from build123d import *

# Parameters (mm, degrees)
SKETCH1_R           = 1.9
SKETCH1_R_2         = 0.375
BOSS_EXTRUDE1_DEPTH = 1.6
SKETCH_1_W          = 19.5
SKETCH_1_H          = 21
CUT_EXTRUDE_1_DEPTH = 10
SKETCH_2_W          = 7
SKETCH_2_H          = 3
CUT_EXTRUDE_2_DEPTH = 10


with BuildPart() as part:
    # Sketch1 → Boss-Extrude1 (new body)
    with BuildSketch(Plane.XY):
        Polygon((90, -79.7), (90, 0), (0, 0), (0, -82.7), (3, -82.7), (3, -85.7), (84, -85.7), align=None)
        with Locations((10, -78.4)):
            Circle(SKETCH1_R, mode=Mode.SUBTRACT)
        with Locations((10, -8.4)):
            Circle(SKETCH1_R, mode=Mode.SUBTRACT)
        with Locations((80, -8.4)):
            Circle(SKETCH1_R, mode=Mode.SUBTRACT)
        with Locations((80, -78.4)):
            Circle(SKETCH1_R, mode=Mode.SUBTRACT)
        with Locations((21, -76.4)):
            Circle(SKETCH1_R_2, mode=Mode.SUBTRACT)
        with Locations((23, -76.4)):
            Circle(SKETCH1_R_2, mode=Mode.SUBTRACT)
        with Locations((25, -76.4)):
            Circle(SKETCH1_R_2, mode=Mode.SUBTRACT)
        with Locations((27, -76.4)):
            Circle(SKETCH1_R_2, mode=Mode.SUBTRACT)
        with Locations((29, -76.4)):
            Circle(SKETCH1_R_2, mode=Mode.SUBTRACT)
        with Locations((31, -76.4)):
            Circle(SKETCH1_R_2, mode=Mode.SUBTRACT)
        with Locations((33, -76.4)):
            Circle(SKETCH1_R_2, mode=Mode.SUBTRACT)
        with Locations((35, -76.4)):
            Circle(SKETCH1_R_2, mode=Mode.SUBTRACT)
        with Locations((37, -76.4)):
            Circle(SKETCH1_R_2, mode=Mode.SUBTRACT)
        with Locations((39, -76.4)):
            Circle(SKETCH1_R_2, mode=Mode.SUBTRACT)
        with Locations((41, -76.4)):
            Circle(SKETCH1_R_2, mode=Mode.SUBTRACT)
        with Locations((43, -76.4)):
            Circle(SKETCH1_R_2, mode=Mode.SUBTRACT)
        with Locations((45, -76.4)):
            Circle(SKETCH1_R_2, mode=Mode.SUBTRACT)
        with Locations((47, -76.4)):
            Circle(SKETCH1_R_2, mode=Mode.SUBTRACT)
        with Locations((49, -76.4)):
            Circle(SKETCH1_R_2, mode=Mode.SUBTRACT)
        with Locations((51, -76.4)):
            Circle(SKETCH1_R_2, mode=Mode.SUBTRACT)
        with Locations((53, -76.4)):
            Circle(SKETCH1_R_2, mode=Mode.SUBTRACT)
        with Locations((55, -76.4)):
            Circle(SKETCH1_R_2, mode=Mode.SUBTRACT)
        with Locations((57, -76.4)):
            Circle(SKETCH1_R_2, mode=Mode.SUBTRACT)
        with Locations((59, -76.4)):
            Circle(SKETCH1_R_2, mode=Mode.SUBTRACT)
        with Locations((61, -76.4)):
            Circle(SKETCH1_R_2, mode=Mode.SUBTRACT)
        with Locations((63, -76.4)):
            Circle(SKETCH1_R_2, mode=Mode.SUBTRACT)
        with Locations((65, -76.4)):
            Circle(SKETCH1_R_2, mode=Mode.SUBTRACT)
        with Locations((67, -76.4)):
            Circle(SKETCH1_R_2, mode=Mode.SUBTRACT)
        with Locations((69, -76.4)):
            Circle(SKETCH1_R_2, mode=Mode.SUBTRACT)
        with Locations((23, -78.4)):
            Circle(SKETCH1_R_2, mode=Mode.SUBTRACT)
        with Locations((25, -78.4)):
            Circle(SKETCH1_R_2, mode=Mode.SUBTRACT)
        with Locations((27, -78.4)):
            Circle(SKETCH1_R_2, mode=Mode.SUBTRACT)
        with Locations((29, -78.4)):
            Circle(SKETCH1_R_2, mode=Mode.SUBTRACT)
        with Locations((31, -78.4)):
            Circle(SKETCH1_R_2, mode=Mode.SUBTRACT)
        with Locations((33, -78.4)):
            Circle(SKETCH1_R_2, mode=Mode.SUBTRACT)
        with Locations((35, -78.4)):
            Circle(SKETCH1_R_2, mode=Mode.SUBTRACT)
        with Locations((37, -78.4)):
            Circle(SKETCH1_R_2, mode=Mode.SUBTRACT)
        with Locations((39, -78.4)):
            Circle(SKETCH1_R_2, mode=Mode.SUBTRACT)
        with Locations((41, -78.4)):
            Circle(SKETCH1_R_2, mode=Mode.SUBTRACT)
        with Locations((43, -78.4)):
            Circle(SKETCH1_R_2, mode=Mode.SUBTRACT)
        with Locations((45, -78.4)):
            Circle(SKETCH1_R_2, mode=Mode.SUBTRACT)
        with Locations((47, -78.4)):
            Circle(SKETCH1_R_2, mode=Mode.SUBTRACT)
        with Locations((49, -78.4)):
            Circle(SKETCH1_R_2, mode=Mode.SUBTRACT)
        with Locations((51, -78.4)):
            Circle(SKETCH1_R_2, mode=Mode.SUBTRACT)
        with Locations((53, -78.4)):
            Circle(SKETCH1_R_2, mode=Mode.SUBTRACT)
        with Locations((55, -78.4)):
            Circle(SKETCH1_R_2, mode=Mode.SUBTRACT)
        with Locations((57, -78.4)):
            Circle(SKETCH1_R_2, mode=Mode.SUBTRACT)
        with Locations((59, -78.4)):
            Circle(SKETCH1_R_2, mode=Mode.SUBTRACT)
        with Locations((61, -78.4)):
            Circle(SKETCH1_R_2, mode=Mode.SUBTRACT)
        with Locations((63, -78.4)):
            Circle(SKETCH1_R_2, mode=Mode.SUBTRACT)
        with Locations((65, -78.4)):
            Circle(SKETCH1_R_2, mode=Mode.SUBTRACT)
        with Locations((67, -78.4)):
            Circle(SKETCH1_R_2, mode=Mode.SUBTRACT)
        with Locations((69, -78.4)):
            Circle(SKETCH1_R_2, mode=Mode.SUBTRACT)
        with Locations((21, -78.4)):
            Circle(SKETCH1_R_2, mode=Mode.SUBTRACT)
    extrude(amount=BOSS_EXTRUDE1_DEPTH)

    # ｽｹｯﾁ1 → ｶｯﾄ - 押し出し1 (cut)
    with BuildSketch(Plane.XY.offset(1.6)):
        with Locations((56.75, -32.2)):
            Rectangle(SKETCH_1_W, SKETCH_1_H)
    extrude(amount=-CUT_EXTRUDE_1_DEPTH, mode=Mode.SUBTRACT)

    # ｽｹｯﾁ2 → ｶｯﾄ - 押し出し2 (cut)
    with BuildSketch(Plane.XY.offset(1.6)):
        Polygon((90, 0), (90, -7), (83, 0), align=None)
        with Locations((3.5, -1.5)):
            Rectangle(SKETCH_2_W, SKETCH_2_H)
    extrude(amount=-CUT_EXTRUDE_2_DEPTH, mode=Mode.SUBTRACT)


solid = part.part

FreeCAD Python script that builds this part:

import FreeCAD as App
import Part
import Sketcher

V = App.Vector
Q = App.Units.Quantity

doc = App.newDocument("Part")
body = doc.addObject("PartDesign::Body", "Body")

# Sketch on XY plane
sketch1 = body.newObject("Sketcher::SketchObject", "Sketch")
sketch1.AttachmentSupport = (doc.getObject("XY_Plane"), [""])
sketch1.MapMode = "FlatFace"
sketch1.addGeometry([
    Part.LineSegment(V(90, -79.7, 0), V(90, 0, 0)),  # 0
    Part.LineSegment(V(90, 0, 0), V(0, 0, 0)),  # 1
    Part.LineSegment(V(0, 0, 0), V(0, -82.7, 0)),  # 2
    Part.LineSegment(V(0, -82.7, 0), V(3, -82.7, 0)),  # 3
    Part.LineSegment(V(3, -82.7, 0), V(3, -85.7, 0)),  # 4
    Part.LineSegment(V(3, -85.7, 0), V(84, -85.7, 0)),  # 5
    Part.LineSegment(V(84, -85.7, 0), V(90, -79.7, 0)),  # 6
    Part.Circle(V(10, -78.4, 0), V(0, 0, 1), 1.9),  # 7
    Part.Circle(V(21, -78.4, 0), V(0, 0, 1), 0.38),  # 8
    Part.Circle(V(21, -76.4, 0), V(0, 0, 1), 0.38),  # 9
    Part.Circle(V(23, -78.4, 0), V(0, 0, 1), 0.38),  # 10
    Part.Circle(V(25, -78.4, 0), V(0, 0, 1), 0.38),  # 11
    Part.Circle(V(23, -76.4, 0), V(0, 0, 1), 0.38),  # 12
    Part.Circle(V(25, -76.4, 0), V(0, 0, 1), 0.38),  # 13
    Part.Circle(V(27, -78.4, 0), V(0, 0, 1), 0.38),  # 14
    Part.Circle(V(29, -78.4, 0), V(0, 0, 1), 0.38),  # 15
    Part.Circle(V(31, -78.4, 0), V(0, 0, 1), 0.38),  # 16
    Part.Circle(V(27, -76.4, 0), V(0, 0, 1), 0.38),  # 17
    Part.Circle(V(29, -76.4, 0), V(0, 0, 1), 0.38),  # 18
    Part.Circle(V(31, -76.4, 0), V(0, 0, 1), 0.38),  # 19
    Part.Circle(V(33, -78.4, 0), V(0, 0, 1), 0.38),  # 20
    Part.Circle(V(35, -78.4, 0), V(0, 0, 1), 0.38),  # 21
    Part.Circle(V(33, -76.4, 0), V(0, 0, 1), 0.38),  # 22
    Part.Circle(V(35, -76.4, 0), V(0, 0, 1), 0.38),  # 23
    Part.Circle(V(37, -78.4, 0), V(0, 0, 1), 0.38),  # 24
    Part.Circle(V(39, -78.4, 0), V(0, 0, 1), 0.38),  # 25
    Part.Circle(V(37, -76.4, 0), V(0, 0, 1), 0.38),  # 26
    Part.Circle(V(39, -76.4, 0), V(0, 0, 1), 0.38),  # 27
    Part.Circle(V(41, -78.4, 0), V(0, 0, 1), 0.38),  # 28
    Part.Circle(V(43, -78.4, 0), V(0, 0, 1), 0.38),  # 29
    Part.Circle(V(45, -78.4, 0), V(0, 0, 1), 0.38),  # 30
    Part.Circle(V(41, -76.4, 0), V(0, 0, 1), 0.38),  # 31
    Part.Circle(V(43, -76.4, 0), V(0, 0, 1), 0.38),  # 32
    Part.Circle(V(45, -76.4, 0), V(0, 0, 1), 0.38),  # 33
    Part.Circle(V(47, -78.4, 0), V(0, 0, 1), 0.38),  # 34
    Part.Circle(V(49, -78.4, 0), V(0, 0, 1), 0.38),  # 35
    Part.Circle(V(47, -76.4, 0), V(0, 0, 1), 0.38),  # 36
    Part.Circle(V(49, -76.4, 0), V(0, 0, 1), 0.38),  # 37
    Part.Circle(V(51, -78.4, 0), V(0, 0, 1), 0.38),  # 38
    Part.Circle(V(53, -78.4, 0), V(0, 0, 1), 0.38),  # 39
    Part.Circle(V(51, -76.4, 0), V(0, 0, 1), 0.38),  # 40
    Part.Circle(V(53, -76.4, 0), V(0, 0, 1), 0.38),  # 41
    Part.Circle(V(55, -78.4, 0), V(0, 0, 1), 0.38),  # 42
    Part.Circle(V(57, -78.4, 0), V(0, 0, 1), 0.38),  # 43
    Part.Circle(V(55, -76.4, 0), V(0, 0, 1), 0.38),  # 44
    Part.Circle(V(57, -76.4, 0), V(0, 0, 1), 0.38),  # 45
    Part.Circle(V(59, -78.4, 0), V(0, 0, 1), 0.38),  # 46
    Part.Circle(V(61, -78.4, 0), V(0, 0, 1), 0.38),  # 47
    Part.Circle(V(63, -78.4, 0), V(0, 0, 1), 0.38),  # 48
    Part.Circle(V(59, -76.4, 0), V(0, 0, 1), 0.38),  # 49
    Part.Circle(V(61, -76.4, 0), V(0, 0, 1), 0.38),  # 50
    Part.Circle(V(63, -76.4, 0), V(0, 0, 1), 0.38),  # 51
    Part.Circle(V(65, -78.4, 0), V(0, 0, 1), 0.38),  # 52
    Part.Circle(V(67, -78.4, 0), V(0, 0, 1), 0.38),  # 53
    Part.Circle(V(65, -76.4, 0), V(0, 0, 1), 0.38),  # 54
    Part.Circle(V(67, -76.4, 0), V(0, 0, 1), 0.38),  # 55
    Part.Circle(V(69, -78.4, 0), V(0, 0, 1), 0.38),  # 56
    Part.Circle(V(69, -76.4, 0), V(0, 0, 1), 0.38),  # 57
    Part.Circle(V(80, -78.4, 0), V(0, 0, 1), 1.9),  # 58
    Part.Circle(V(10, -8.4, 0), V(0, 0, 1), 1.9),  # 59
    Part.Circle(V(80, -8.4, 0), V(0, 0, 1), 1.9),  # 60
], False)
sketch1.addConstraint([
    Sketcher.Constraint("Coincident", 0, 2, 1, 1),
    Sketcher.Constraint("Coincident", 1, 2, 2, 1),
    Sketcher.Constraint("Coincident", 2, 2, 3, 1),
    Sketcher.Constraint("Coincident", 3, 2, 4, 1),
    Sketcher.Constraint("Coincident", 4, 2, 5, 1),
    Sketcher.Constraint("Coincident", 5, 2, 6, 1),
    Sketcher.Constraint("Coincident", 6, 2, 0, 1),
    Sketcher.Constraint("Vertical", 0),
    Sketcher.Constraint("Horizontal", 1),
    Sketcher.Constraint("Vertical", 2),
    Sketcher.Constraint("Horizontal", 3),
    Sketcher.Constraint("Vertical", 4),
    Sketcher.Constraint("Horizontal", 5),
    Sketcher.Constraint("Coincident", 1, 2, -1, 1),
    Sketcher.Constraint("Equal", 8, 9),
    Sketcher.Constraint("Equal", 9, 10),
    Sketcher.Constraint("Equal", 10, 11),
    Sketcher.Constraint("Equal", 11, 12),
    Sketcher.Constraint("Equal", 12, 13),
    Sketcher.Constraint("Equal", 13, 14),
    Sketcher.Constraint("Equal", 14, 15),
    Sketcher.Constraint("Equal", 15, 16),
    Sketcher.Constraint("Equal", 16, 17),
    Sketcher.Constraint("Equal", 17, 18),
    Sketcher.Constraint("Equal", 18, 19),
    Sketcher.Constraint("Equal", 19, 20),
    Sketcher.Constraint("Equal", 20, 21),
    Sketcher.Constraint("Equal", 21, 22),
    Sketcher.Constraint("Equal", 22, 23),
    Sketcher.Constraint("Equal", 23, 24),
    Sketcher.Constraint("Equal", 24, 25),
    Sketcher.Constraint("Equal", 25, 26),
    Sketcher.Constraint("Equal", 26, 27),
    Sketcher.Constraint("Equal", 27, 28),
    Sketcher.Constraint("Equal", 28, 29),
    Sketcher.Constraint("Equal", 29, 30),
    Sketcher.Constraint("Equal", 30, 31),
    Sketcher.Constraint("Equal", 31, 32),
    Sketcher.Constraint("Equal", 32, 33),
    Sketcher.Constraint("Equal", 33, 34),
    Sketcher.Constraint("Equal", 34, 35),
    Sketcher.Constraint("Equal", 35, 36),
    Sketcher.Constraint("Equal", 36, 37),
    Sketcher.Constraint("Equal", 37, 38),
    Sketcher.Constraint("Equal", 38, 39),
    Sketcher.Constraint("Equal", 39, 40),
    Sketcher.Constraint("Equal", 40, 41),
    Sketcher.Constraint("Equal", 41, 42),
    Sketcher.Constraint("Equal", 42, 43),
    Sketcher.Constraint("Equal", 43, 44),
    Sketcher.Constraint("Equal", 44, 45),
    Sketcher.Constraint("Equal", 45, 46),
    Sketcher.Constraint("Equal", 46, 47),
    Sketcher.Constraint("Equal", 47, 48),
    Sketcher.Constraint("Equal", 48, 49),
    Sketcher.Constraint("Equal", 49, 50),
    Sketcher.Constraint("Equal", 50, 51),
    Sketcher.Constraint("Equal", 51, 52),
    Sketcher.Constraint("Equal", 52, 53),
    Sketcher.Constraint("Equal", 53, 54),
    Sketcher.Constraint("Equal", 54, 55),
    Sketcher.Constraint("Equal", 55, 56),
    Sketcher.Constraint("Equal", 56, 57),
    Sketcher.Constraint("Equal", 7, 58),
    Sketcher.Constraint("Equal", 58, 59),
    Sketcher.Constraint("Equal", 59, 60),
    Sketcher.Constraint("Horizontal", 7, 3, 8, 3),
    Sketcher.Constraint("Horizontal", 8, 3, 10, 3),
    Sketcher.Constraint("Horizontal", 10, 3, 11, 3),
    Sketcher.Constraint("Horizontal", 9, 3, 12, 3),
    Sketcher.Constraint("Horizontal", 12, 3, 13, 3),
    Sketcher.Constraint("Horizontal", 11, 3, 14, 3),
    Sketcher.Constraint("Horizontal", 14, 3, 15, 3),
    Sketcher.Constraint("Horizontal", 15, 3, 16, 3),
    Sketcher.Constraint("Horizontal", 13, 3, 17, 3),
    Sketcher.Constraint("Horizontal", 17, 3, 18, 3),
    Sketcher.Constraint("Horizontal", 18, 3, 19, 3),
    Sketcher.Constraint("Horizontal", 16, 3, 20, 3),
    Sketcher.Constraint("Horizontal", 20, 3, 21, 3),
    Sketcher.Constraint("Horizontal", 19, 3, 22, 3),
    Sketcher.Constraint("Horizontal", 22, 3, 23, 3),
    Sketcher.Constraint("Horizontal", 21, 3, 24, 3),
    Sketcher.Constraint("Horizontal", 24, 3, 25, 3),
    Sketcher.Constraint("Horizontal", 23, 3, 26, 3),
    Sketcher.Constraint("Horizontal", 26, 3, 27, 3),
    Sketcher.Constraint("Horizontal", 25, 3, 28, 3),
    Sketcher.Constraint("Horizontal", 28, 3, 29, 3),
    Sketcher.Constraint("Horizontal", 29, 3, 30, 3),
    Sketcher.Constraint("Horizontal", 27, 3, 31, 3),
    Sketcher.Constraint("Horizontal", 31, 3, 32, 3),
    Sketcher.Constraint("Horizontal", 32, 3, 33, 3),
    Sketcher.Constraint("Horizontal", 30, 3, 34, 3),
    Sketcher.Constraint("Horizontal", 34, 3, 35, 3),
    Sketcher.Constraint("Horizontal", 33, 3, 36, 3),
    Sketcher.Constraint("Horizontal", 36, 3, 37, 3),
    Sketcher.Constraint("Horizontal", 35, 3, 38, 3),
    Sketcher.Constraint("Horizontal", 38, 3, 39, 3),
    Sketcher.Constraint("Horizontal", 37, 3, 40, 3),
    Sketcher.Constraint("Horizontal", 40, 3, 41, 3),
    Sketcher.Constraint("Horizontal", 39, 3, 42, 3),
    Sketcher.Constraint("Horizontal", 42, 3, 43, 3),
    Sketcher.Constraint("Horizontal", 41, 3, 44, 3),
    Sketcher.Constraint("Horizontal", 44, 3, 45, 3),
    Sketcher.Constraint("Horizontal", 43, 3, 46, 3),
    Sketcher.Constraint("Horizontal", 46, 3, 47, 3),
    Sketcher.Constraint("Horizontal", 47, 3, 48, 3),
    Sketcher.Constraint("Horizontal", 45, 3, 49, 3),
    Sketcher.Constraint("Horizontal", 49, 3, 50, 3),
    Sketcher.Constraint("Horizontal", 50, 3, 51, 3),
    Sketcher.Constraint("Horizontal", 48, 3, 52, 3),
    Sketcher.Constraint("Horizontal", 52, 3, 53, 3),
    Sketcher.Constraint("Horizontal", 51, 3, 54, 3),
    Sketcher.Constraint("Horizontal", 54, 3, 55, 3),
    Sketcher.Constraint("Horizontal", 53, 3, 56, 3),
    Sketcher.Constraint("Horizontal", 55, 3, 57, 3),
    Sketcher.Constraint("Horizontal", 56, 3, 58, 3),
    Sketcher.Constraint("Horizontal", 59, 3, 60, 3),
    Sketcher.Constraint("Vertical", 8, 3, 9, 3),
    Sketcher.Constraint("Vertical", 10, 3, 12, 3),
    Sketcher.Constraint("Vertical", 11, 3, 13, 3),
    Sketcher.Constraint("Vertical", 14, 3, 17, 3),
    Sketcher.Constraint("Vertical", 15, 3, 18, 3),
    Sketcher.Constraint("Vertical", 16, 3, 19, 3),
    Sketcher.Constraint("Vertical", 20, 3, 22, 3),
    Sketcher.Constraint("Vertical", 21, 3, 23, 3),
    Sketcher.Constraint("Vertical", 24, 3, 26, 3),
    Sketcher.Constraint("Vertical", 25, 3, 27, 3),
    Sketcher.Constraint("Vertical", 28, 3, 31, 3),
    Sketcher.Constraint("Vertical", 29, 3, 32, 3),
    Sketcher.Constraint("Vertical", 30, 3, 33, 3),
    Sketcher.Constraint("Vertical", 34, 3, 36, 3),
    Sketcher.Constraint("Vertical", 35, 3, 37, 3),
    Sketcher.Constraint("Vertical", 38, 3, 40, 3),
    Sketcher.Constraint("Vertical", 39, 3, 41, 3),
    Sketcher.Constraint("Vertical", 42, 3, 44, 3),
    Sketcher.Constraint("Vertical", 43, 3, 45, 3),
    Sketcher.Constraint("Vertical", 46, 3, 49, 3),
    Sketcher.Constraint("Vertical", 47, 3, 50, 3),
    Sketcher.Constraint("Vertical", 48, 3, 51, 3),
    Sketcher.Constraint("Vertical", 52, 3, 54, 3),
    Sketcher.Constraint("Vertical", 53, 3, 55, 3),
    Sketcher.Constraint("Vertical", 56, 3, 57, 3),
    Sketcher.Constraint("Vertical", 7, 3, 59, 3),
    Sketcher.Constraint("Vertical", 58, 3, 60, 3),
    Sketcher.Constraint("Equal", 3, 4),
    Sketcher.Constraint("Diameter", 7, 3.8),
    Sketcher.Constraint("Diameter", 8, 0.75),
    Sketcher.Constraint("DistanceX", 1, 2, 1, 1, 90.0),
    Sketcher.Constraint("DistanceX", 3, 1, 3, 2, 3.0),
    Sketcher.Constraint("DistanceX", 5, 1, 5, 2, 81.0),
    Sketcher.Constraint("Angle", 6, Q("45 deg")),
    Sketcher.Constraint("DistanceY", 0, 1, 0, 2, 79.7),
    Sketcher.Constraint("DistanceX", -1, 1, 7, 3, 10.0),
    Sketcher.Constraint("DistanceX", -1, 1, 8, 3, 21.0),
    Sketcher.Constraint("DistanceX", -1, 1, 10, 3, 23.0),
    Sketcher.Constraint("DistanceX", -1, 1, 11, 3, 25.0),
    Sketcher.Constraint("DistanceX", -1, 1, 14, 3, 27.0),
    Sketcher.Constraint("DistanceX", -1, 1, 15, 3, 29.0),
    Sketcher.Constraint("DistanceX", -1, 1, 16, 3, 31.0),
    Sketcher.Constraint("DistanceX", -1, 1, 20, 3, 33.0),
    Sketcher.Constraint("DistanceX", -1, 1, 21, 3, 35.0),
    Sketcher.Constraint("DistanceX", -1, 1, 24, 3, 37.0),
    Sketcher.Constraint("DistanceX", -1, 1, 25, 3, 39.0),
    Sketcher.Constraint("DistanceX", -1, 1, 28, 3, 41.0),
    Sketcher.Constraint("DistanceX", -1, 1, 29, 3, 43.0),
    Sketcher.Constraint("DistanceX", -1, 1, 30, 3, 45.0),
    Sketcher.Constraint("DistanceX", -1, 1, 34, 3, 47.0),
    Sketcher.Constraint("DistanceX", -1, 1, 35, 3, 49.0),
    Sketcher.Constraint("DistanceX", -1, 1, 38, 3, 51.0),
    Sketcher.Constraint("DistanceX", -1, 1, 39, 3, 53.0),
    Sketcher.Constraint("DistanceX", -1, 1, 42, 3, 55.0),
    Sketcher.Constraint("DistanceX", -1, 1, 43, 3, 57.0),
    Sketcher.Constraint("DistanceX", -1, 1, 46, 3, 59.0),
    Sketcher.Constraint("DistanceX", -1, 1, 47, 3, 61.0),
    Sketcher.Constraint("DistanceX", -1, 1, 48, 3, 63.0),
    Sketcher.Constraint("DistanceX", -1, 1, 52, 3, 65.0),
    Sketcher.Constraint("DistanceX", -1, 1, 53, 3, 67.0),
    Sketcher.Constraint("DistanceX", -1, 1, 56, 3, 69.0),
    Sketcher.Constraint("DistanceX", -1, 1, 58, 3, 80.0),
    Sketcher.Constraint("DistanceY", 7, 3, -1, 1, 78.4),
    Sketcher.Constraint("DistanceY", 9, 3, -1, 1, 76.4),
    Sketcher.Constraint("DistanceY", 59, 3, -1, 1, 8.4),
])
pad1 = body.newObject("PartDesign::Pad", "Pad")
pad1.Profile = sketch1
pad1.Length = 1.6

# Sketch on XY plane
sketch2 = body.newObject("Sketcher::SketchObject", "Sketch001")
sketch2.AttachmentSupport = (doc.getObject("XY_Plane"), [""])
sketch2.MapMode = "FlatFace"
sketch2.AttachmentOffset = App.Placement(V(0, 0, 1.6), App.Rotation())
sketch2.addGeometry([
    Part.LineSegment(V(47, -22, 0), V(47, -43, 0)),
    Part.LineSegment(V(47, -43, 0), V(66, -43, 0)),
    Part.LineSegment(V(66, -43, 0), V(66, -22, 0)),
    Part.LineSegment(V(66, -22, 0), V(47, -22, 0)),
], False)
sketch2.addConstraint([
    Sketcher.Constraint("Coincident", 0, 2, 1, 1),
    Sketcher.Constraint("Coincident", 1, 2, 2, 1),
    Sketcher.Constraint("Coincident", 2, 2, 3, 1),
    Sketcher.Constraint("Coincident", 3, 2, 0, 1),
    Sketcher.Constraint("Vertical", 0),
    Sketcher.Constraint("Horizontal", 1),
    Sketcher.Constraint("Vertical", 2),
    Sketcher.Constraint("Horizontal", 3),
    Sketcher.Constraint("DistanceY", 0, 2, 0, 1, 21.0),
    Sketcher.Constraint("DistanceX", 1, 1, 1, 2, 19.5),
    Sketcher.Constraint("DistanceX", -1, 1, 0, 2, 47.0),
    Sketcher.Constraint("DistanceY", 0, 2, -1, 1, 42.7),
])
pocket1 = body.newObject("PartDesign::Pocket", "Pocket")
pocket1.Profile = sketch2
pocket1.Length = 10

# Sketch on XY plane
sketch3 = body.newObject("Sketcher::SketchObject", "Sketch002")
sketch3.AttachmentSupport = (doc.getObject("XY_Plane"), [""])
sketch3.MapMode = "FlatFace"
sketch3.AttachmentOffset = App.Placement(V(0, 0, 1.6), App.Rotation())
sketch3.addGeometry([
    Part.LineSegment(V(90, -7, 0), V(90, 0, 0)),  # 0
    Part.LineSegment(V(90, 0, 0), V(83, 0, 0)),  # 1
    Part.LineSegment(V(83, 0, 0), V(90, -7, 0)),  # 2
    Part.LineSegment(V(0, 0, 0), V(0, -3, 0)),  # 3
    Part.LineSegment(V(0, -3, 0), V(7, -3, 0)),  # 4
    Part.LineSegment(V(7, -3, 0), V(7, 0, 0)),  # 5
    Part.LineSegment(V(7, 0, 0), V(0, 0, 0)),  # 6
], False)
sketch3.addConstraint([
    Sketcher.Constraint("Coincident", 0, 2, 1, 1),
    Sketcher.Constraint("Coincident", 1, 2, 2, 1),
    Sketcher.Constraint("Coincident", 2, 2, 0, 1),
    Sketcher.Constraint("Coincident", 3, 2, 4, 1),
    Sketcher.Constraint("Coincident", 4, 2, 5, 1),
    Sketcher.Constraint("Coincident", 5, 2, 6, 1),
    Sketcher.Constraint("Coincident", 6, 2, 3, 1),
    Sketcher.Constraint("Vertical", 0),
    Sketcher.Constraint("Horizontal", 1),
    Sketcher.Constraint("Vertical", 3),
    Sketcher.Constraint("Horizontal", 4),
    Sketcher.Constraint("Vertical", 5),
    Sketcher.Constraint("Horizontal", 6),
    Sketcher.Constraint("Coincident", 6, 2, -1, 1),
    Sketcher.Constraint("PointOnObject", 0, 2, -1),
    Sketcher.Constraint("Equal", 1, 4),
    Sketcher.Constraint("Equal", 6, 0),
    Sketcher.Constraint("DistanceX", 1, 2, 1, 1, 7.0),
    Sketcher.Constraint("DistanceY", 3, 2, 3, 1, 3.0),
    Sketcher.Constraint("DistanceX", -1, 1, 0, 2, 90.0),
])
pocket2 = body.newObject("PartDesign::Pocket", "Pocket001")
pocket2.Profile = sketch3
pocket2.Length = 10

doc.recompute()
